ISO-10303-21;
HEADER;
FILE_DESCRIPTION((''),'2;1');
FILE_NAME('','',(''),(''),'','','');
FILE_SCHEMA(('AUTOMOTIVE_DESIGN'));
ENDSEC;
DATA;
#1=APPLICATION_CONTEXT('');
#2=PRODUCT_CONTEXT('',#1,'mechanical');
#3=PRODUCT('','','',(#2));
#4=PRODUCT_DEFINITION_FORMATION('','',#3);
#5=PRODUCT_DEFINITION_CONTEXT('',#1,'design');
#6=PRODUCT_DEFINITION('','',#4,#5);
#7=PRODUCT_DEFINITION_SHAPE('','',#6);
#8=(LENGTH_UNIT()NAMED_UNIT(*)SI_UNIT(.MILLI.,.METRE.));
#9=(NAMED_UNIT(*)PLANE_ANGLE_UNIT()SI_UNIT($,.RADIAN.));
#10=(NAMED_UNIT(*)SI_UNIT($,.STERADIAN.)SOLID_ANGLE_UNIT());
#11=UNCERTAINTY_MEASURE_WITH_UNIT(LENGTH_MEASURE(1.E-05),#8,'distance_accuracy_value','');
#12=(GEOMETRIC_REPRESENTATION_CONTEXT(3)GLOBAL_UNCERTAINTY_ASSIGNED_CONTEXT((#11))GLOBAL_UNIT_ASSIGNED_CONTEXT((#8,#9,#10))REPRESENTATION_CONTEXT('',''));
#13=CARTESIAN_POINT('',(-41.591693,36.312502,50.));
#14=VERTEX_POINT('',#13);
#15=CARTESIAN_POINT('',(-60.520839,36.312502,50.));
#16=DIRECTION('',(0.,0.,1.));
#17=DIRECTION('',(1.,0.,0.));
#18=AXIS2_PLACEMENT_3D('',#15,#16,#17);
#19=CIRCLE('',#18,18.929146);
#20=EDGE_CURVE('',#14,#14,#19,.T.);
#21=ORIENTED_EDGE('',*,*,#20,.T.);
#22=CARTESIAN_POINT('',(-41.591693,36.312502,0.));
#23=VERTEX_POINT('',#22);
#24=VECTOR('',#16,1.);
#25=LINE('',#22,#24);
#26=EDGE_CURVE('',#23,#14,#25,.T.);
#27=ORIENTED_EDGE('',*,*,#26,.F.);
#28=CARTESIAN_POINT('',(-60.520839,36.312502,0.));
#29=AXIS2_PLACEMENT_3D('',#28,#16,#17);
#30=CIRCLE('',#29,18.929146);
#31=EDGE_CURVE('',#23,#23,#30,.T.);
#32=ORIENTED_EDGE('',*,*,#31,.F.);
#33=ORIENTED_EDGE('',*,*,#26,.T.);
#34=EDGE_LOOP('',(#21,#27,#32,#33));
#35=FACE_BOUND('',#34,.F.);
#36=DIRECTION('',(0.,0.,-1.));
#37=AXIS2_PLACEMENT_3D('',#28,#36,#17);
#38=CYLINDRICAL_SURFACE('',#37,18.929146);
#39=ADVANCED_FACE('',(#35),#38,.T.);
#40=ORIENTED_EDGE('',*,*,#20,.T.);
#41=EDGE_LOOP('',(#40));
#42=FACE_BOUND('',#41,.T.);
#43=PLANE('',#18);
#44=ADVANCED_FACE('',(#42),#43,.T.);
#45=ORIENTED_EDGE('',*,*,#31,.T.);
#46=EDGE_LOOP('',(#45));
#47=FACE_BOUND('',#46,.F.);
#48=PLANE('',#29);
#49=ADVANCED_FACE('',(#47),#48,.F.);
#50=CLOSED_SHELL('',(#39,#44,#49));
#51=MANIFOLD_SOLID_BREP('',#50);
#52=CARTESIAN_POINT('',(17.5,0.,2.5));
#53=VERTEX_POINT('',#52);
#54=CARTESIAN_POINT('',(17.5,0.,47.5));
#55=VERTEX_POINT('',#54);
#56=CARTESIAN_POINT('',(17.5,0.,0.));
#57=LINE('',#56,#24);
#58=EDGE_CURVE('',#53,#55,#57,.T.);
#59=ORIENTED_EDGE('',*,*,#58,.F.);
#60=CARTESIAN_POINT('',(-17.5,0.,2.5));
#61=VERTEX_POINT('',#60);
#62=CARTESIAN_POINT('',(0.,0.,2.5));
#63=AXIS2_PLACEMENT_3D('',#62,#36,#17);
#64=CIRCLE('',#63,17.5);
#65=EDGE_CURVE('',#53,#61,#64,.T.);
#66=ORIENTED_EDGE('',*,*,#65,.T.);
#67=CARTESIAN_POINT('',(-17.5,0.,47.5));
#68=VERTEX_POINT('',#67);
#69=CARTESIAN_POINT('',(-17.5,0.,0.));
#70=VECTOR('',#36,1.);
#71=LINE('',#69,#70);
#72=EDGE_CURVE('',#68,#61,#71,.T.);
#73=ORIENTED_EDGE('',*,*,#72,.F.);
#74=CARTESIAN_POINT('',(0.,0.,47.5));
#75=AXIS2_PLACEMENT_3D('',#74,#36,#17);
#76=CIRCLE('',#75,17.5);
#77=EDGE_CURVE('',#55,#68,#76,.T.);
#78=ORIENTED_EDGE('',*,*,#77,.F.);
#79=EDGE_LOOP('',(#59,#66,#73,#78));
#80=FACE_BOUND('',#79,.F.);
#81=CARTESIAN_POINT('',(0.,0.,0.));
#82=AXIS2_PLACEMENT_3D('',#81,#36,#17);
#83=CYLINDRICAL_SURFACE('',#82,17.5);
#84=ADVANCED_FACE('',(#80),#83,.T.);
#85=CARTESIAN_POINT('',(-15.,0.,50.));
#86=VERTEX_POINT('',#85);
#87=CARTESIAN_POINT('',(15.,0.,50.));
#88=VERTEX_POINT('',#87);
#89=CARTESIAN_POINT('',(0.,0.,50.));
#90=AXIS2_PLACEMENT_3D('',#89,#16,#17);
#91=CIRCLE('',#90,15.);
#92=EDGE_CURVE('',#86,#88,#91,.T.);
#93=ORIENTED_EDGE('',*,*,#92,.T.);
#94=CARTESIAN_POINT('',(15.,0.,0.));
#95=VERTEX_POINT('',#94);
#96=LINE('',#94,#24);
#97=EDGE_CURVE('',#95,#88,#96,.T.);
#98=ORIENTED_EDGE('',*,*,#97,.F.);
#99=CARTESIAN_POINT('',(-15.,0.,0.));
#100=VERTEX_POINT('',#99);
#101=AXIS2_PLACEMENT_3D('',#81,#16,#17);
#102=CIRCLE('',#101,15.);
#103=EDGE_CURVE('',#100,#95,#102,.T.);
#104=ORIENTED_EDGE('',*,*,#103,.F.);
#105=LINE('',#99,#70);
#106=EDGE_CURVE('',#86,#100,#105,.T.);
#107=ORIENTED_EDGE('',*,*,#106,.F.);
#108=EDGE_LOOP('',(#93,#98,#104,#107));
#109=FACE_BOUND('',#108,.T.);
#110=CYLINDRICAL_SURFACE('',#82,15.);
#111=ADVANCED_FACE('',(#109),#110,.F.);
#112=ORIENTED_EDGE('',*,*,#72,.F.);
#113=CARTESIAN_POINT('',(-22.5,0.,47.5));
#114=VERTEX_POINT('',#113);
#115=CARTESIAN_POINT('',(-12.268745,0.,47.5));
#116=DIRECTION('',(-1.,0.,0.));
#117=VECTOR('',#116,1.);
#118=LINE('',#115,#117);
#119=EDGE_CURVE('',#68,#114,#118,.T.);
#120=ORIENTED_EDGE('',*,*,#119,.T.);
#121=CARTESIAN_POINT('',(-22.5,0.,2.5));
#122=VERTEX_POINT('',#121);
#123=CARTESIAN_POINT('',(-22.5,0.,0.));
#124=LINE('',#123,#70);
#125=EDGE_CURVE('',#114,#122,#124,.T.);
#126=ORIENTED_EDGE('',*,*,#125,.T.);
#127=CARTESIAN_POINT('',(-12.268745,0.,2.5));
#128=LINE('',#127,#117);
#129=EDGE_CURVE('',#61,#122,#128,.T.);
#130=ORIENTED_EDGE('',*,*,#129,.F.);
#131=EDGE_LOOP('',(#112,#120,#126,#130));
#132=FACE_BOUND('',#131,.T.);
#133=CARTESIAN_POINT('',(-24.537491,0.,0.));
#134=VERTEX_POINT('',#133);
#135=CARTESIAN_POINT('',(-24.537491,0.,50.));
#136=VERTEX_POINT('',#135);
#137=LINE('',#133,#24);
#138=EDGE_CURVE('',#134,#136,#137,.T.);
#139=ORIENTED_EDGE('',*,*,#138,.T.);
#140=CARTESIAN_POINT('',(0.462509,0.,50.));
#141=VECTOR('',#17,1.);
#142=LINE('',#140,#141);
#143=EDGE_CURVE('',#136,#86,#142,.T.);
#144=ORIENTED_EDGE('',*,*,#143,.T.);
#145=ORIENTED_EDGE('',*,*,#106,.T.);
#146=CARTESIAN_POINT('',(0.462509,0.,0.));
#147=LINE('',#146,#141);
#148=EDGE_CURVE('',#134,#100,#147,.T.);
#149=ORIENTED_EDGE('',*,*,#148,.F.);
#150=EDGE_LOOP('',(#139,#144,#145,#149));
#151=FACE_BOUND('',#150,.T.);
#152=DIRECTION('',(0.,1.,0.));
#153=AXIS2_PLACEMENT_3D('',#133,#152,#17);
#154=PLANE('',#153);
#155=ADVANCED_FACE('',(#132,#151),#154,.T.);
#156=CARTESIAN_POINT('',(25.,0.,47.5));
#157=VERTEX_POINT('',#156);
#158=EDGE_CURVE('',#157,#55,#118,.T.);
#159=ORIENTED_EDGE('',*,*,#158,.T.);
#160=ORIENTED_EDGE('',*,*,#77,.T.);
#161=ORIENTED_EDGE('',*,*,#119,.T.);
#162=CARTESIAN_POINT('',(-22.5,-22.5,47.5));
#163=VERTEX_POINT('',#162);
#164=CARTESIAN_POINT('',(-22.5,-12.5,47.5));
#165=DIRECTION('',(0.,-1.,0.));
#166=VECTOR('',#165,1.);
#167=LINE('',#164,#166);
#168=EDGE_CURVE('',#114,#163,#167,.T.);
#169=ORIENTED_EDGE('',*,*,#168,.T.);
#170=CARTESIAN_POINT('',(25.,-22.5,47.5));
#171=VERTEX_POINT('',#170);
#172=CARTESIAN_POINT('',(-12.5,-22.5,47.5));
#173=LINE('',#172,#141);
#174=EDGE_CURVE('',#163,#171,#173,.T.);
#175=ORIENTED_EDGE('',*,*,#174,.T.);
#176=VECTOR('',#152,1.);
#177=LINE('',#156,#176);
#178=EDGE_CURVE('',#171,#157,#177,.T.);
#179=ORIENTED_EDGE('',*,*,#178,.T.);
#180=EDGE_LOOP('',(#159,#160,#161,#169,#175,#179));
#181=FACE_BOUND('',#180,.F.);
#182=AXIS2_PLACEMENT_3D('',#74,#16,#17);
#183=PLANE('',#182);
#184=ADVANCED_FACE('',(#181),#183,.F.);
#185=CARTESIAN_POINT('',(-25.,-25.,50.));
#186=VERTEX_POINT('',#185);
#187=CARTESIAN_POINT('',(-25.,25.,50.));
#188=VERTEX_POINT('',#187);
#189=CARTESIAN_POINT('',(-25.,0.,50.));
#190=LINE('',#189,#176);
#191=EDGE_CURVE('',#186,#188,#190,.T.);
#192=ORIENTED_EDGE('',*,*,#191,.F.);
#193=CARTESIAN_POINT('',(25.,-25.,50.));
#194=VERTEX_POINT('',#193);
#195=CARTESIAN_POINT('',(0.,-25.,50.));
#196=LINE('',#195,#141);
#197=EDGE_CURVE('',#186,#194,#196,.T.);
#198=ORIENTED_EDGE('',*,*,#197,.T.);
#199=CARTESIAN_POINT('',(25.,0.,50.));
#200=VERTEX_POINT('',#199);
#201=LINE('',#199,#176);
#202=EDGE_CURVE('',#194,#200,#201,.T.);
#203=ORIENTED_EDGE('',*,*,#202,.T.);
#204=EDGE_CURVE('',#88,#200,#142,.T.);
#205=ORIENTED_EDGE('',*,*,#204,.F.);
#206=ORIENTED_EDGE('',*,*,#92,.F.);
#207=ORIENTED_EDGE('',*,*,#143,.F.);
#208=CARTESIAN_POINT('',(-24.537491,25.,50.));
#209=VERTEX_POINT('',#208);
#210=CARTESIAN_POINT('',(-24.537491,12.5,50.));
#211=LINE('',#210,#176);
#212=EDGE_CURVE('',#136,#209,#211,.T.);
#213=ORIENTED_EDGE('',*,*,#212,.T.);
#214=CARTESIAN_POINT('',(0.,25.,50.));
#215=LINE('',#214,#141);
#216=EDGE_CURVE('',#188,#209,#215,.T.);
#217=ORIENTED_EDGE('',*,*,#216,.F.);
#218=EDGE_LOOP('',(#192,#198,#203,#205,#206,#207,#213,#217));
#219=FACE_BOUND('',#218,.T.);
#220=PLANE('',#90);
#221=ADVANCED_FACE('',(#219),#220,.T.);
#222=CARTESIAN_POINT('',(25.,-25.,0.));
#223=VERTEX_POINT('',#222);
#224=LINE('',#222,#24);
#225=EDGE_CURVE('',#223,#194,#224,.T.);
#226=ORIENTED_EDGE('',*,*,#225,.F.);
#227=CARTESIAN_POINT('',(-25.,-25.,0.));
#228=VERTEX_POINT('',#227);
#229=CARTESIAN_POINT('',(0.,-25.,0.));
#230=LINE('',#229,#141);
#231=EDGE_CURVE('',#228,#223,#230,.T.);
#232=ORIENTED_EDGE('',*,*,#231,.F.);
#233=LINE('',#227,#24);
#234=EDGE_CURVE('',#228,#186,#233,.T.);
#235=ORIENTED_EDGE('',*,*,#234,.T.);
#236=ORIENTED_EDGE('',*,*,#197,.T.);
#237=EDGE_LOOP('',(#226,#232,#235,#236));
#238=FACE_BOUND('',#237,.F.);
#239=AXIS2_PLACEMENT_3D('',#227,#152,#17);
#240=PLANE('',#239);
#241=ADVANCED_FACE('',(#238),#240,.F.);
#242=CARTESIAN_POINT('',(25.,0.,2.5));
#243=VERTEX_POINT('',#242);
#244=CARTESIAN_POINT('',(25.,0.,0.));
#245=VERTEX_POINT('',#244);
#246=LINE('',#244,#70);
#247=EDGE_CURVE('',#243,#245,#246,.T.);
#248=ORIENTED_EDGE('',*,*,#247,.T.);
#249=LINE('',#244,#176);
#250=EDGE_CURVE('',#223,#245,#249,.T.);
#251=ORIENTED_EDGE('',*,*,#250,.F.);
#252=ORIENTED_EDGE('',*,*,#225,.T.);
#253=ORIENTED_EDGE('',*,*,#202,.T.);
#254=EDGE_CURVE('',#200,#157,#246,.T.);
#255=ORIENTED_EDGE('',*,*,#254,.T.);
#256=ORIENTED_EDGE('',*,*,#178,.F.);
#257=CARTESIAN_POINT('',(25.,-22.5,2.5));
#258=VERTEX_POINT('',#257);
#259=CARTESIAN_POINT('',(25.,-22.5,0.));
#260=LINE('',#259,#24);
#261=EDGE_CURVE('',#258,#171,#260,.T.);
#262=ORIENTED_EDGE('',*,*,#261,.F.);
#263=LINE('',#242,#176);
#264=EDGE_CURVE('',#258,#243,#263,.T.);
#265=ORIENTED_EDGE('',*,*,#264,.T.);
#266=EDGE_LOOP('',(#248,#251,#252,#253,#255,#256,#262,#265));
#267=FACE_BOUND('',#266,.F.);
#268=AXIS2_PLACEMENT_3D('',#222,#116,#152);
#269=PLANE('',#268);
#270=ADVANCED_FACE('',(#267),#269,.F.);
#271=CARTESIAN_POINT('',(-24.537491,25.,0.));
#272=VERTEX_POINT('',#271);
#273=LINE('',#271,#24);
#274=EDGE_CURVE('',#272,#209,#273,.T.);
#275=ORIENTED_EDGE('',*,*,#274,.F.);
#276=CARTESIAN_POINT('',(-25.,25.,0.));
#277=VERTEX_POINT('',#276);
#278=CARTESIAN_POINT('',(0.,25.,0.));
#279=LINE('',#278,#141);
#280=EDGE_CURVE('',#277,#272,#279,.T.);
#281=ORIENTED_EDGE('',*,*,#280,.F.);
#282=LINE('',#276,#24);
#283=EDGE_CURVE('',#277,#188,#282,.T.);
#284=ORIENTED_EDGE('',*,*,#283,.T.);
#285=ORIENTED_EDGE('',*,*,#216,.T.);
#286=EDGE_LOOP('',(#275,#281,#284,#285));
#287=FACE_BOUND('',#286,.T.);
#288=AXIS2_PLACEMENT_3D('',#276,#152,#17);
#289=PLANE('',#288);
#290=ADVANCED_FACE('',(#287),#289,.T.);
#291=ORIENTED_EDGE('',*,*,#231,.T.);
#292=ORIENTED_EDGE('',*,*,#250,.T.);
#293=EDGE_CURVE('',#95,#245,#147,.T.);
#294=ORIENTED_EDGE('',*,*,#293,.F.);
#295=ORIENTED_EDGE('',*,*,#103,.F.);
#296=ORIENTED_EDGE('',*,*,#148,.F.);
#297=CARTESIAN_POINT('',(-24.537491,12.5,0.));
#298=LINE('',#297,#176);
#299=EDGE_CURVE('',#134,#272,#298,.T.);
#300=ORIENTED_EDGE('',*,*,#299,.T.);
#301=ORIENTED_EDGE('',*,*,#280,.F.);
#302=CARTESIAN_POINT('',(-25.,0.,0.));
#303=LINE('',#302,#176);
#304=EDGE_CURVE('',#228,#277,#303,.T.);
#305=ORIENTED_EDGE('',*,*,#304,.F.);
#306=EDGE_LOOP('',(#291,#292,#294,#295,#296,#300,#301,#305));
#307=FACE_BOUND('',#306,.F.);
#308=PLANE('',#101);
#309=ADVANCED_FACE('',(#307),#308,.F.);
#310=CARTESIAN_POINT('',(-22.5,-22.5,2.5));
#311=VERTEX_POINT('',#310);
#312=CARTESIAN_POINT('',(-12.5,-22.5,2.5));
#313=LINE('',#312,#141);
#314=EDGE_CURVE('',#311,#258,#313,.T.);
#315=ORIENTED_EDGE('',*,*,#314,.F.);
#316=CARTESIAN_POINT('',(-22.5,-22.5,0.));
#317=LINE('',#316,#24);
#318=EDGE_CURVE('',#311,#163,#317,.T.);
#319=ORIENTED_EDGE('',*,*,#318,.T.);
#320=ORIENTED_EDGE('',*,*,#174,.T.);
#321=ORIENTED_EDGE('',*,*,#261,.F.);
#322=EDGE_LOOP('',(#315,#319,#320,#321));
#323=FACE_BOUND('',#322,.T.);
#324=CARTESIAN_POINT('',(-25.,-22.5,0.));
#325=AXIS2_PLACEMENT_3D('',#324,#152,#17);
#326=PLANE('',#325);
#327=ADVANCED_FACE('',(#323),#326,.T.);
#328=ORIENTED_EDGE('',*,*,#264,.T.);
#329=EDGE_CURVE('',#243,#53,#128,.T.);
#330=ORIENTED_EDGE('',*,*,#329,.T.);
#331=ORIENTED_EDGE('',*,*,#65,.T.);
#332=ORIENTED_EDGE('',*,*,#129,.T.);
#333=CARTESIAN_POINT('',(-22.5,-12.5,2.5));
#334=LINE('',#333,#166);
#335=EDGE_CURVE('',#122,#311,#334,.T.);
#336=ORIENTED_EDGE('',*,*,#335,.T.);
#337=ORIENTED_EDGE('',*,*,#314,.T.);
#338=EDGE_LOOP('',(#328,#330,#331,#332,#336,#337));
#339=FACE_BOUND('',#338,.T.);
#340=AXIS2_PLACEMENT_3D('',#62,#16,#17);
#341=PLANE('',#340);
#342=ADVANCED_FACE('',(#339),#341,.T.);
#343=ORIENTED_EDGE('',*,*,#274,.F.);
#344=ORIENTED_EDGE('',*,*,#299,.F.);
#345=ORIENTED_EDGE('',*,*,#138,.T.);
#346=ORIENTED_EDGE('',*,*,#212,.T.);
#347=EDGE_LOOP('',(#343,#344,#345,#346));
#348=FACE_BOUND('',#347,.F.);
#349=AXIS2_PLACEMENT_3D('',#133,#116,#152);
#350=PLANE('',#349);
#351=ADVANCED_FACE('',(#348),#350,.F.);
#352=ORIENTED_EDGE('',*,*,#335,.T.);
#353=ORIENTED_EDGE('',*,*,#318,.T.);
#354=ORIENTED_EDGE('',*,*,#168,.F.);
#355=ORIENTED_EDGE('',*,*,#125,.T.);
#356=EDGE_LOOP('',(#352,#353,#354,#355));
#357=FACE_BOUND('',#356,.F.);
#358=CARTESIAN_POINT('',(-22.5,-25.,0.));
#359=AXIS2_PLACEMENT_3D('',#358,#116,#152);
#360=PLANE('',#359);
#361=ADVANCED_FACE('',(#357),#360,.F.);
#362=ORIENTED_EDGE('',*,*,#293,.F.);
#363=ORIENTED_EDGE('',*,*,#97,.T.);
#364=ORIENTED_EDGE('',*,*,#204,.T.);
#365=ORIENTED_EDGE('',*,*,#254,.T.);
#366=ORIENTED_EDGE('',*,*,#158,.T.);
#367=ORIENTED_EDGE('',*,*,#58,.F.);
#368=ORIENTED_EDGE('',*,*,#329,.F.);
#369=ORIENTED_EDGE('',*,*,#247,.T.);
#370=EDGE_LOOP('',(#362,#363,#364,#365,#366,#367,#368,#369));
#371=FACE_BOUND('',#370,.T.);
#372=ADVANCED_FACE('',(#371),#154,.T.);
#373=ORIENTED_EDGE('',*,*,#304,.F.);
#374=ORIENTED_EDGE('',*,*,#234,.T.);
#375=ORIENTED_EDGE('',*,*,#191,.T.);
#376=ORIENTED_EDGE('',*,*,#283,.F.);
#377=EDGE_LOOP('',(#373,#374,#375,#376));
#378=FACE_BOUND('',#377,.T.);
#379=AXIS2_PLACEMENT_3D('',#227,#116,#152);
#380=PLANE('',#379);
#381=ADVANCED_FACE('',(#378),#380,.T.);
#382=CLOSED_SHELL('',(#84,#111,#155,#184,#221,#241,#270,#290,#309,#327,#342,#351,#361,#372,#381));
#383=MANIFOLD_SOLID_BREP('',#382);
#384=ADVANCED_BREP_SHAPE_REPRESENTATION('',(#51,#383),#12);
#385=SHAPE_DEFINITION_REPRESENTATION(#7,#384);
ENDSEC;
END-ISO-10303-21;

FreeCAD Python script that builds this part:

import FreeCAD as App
import Part
import Sketcher
Q = App.Units.Quantity


def faces_at(feature, points):
    """Names of the faces that lie closest to the given points."""
    faces = feature.Shape.Faces
    near = lambda p: min(range(len(faces)), key=lambda i: faces[i].distToShape(Part.Vertex(*p))[0])
    return sorted({f"Face{near(p) + 1}" for p in points})

doc = App.newDocument("Part")
params = doc.addObject("Spreadsheet::Sheet", "Params")
for row, (alias, value) in enumerate([
    ("sketch1_width", "50 mm"),
    ("pad1_length", "50 mm"),
    ("sketch2_diameter", "30 mm"),
    ("pocket1_length", "50 mm"),
    ("thickness_wall", "2.5 mm"),
    ("sketch3_width", "50 mm"),
    ("sketch3_height", "25 mm"),
    ("pocket2_length", "50 mm"),
    ("pad2_length", "50 mm"),
], start=1):
    params.set(f"A{row}", alias)
    params.set(f"B{row}", "=" + value)
    params.setAlias(f"B{row}", alias)

body = doc.addObject("PartDesign::Body", "Body")

# Sketch on XY plane
sketch1 = body.newObject("Sketcher::SketchObject", "Sketch")
sketch1.AttachmentSupport = (doc.getObject("XY_Plane"), [""])
sketch1.MapMode = "FlatFace"
sketch1.addGeometry(Part.LineSegment(App.Vector(-25, 25, 0), App.Vector(-25, -25, 0)), False)
sketch1.addGeometry(Part.LineSegment(App.Vector(-25, -25, 0), App.Vector(25, -25, 0)), False)
sketch1.addGeometry(Part.LineSegment(App.Vector(25, -25, 0), App.Vector(25, 25, 0)), False)
sketch1.addGeometry(Part.LineSegment(App.Vector(25, 25, 0), App.Vector(-25, 25, 0)), False)
sketch1.addConstraint(Sketcher.Constraint("Coincident", 0, 2, 1, 1))
sketch1.addConstraint(Sketcher.Constraint("Coincident", 1, 2, 2, 1))
sketch1.addConstraint(Sketcher.Constraint("Coincident", 2, 2, 3, 1))
sketch1.addConstraint(Sketcher.Constraint("Coincident", 3, 2, 0, 1))
sketch1.addConstraint(Sketcher.Constraint("Vertical", 0))
sketch1.addConstraint(Sketcher.Constraint("Horizontal", 1))
sketch1.addConstraint(Sketcher.Constraint("Vertical", 2))
sketch1.addConstraint(Sketcher.Constraint("Horizontal", 3))
sketch1.addConstraint(Sketcher.Constraint("Symmetric", 0, 2, 2, 2, -1, 1))
sketch1.addConstraint(Sketcher.Constraint("Equal", 3, 0))
sketch1.addConstraint(Sketcher.Constraint("DistanceX", 1, 1, 1, 2, Q("50 mm")))
sketch1.setExpression("Constraints[10]", "Params.sketch1_width")
pad1 = body.newObject("PartDesign::Pad", "Pad")
pad1.Profile = sketch1
pad1.setExpression("Length", "Params.pad1_length")

# Sketch on XY plane
sketch2 = body.newObject("Sketcher::SketchObject", "Sketch001")
sketch2.AttachmentSupport = (doc.getObject("XY_Plane"), [""])
sketch2.MapMode = "FlatFace"
sketch2.addGeometry(Part.Circle(App.Vector(0, 0, 0), App.Vector(0, 0, 1), 15), False)
sketch2.addConstraint(Sketcher.Constraint("Coincident", 0, 3, -1, 1))
sketch2.addConstraint(Sketcher.Constraint("Diameter", 0, Q("30 mm")))
sketch2.setExpression("Constraints[1]", "Params.sketch2_diameter")
pocket1 = body.newObject("PartDesign::Pocket", "Pocket")
pocket1.Profile = sketch2
pocket1.setExpression("Length", "Params.pocket1_length")
pocket1.Reversed = True
doc.recompute()

thickness = body.newObject("PartDesign::Thickness", "Thickness")
thickness.Base = (pocket1, faces_at(pocket1, [(25, 0, 25)]))
thickness.setExpression("Value", "Params.thickness_wall")
thickness.Reversed = True
thickness.Join = "Arc"

# Sketch on XY plane
sketch3 = body.newObject("Sketcher::SketchObject", "Sketch002")
sketch3.AttachmentSupport = (doc.getObject("XY_Plane"), [""])
sketch3.MapMode = "FlatFace"
sketch3.addGeometry(Part.LineSegment(App.Vector(-24.537491, 25, 0), App.Vector(-24.537491, 0, 0)), False)
sketch3.addGeometry(Part.LineSegment(App.Vector(-24.537491, 0, 0), App.Vector(25.462509, 0, 0)), False)
sketch3.addGeometry(Part.LineSegment(App.Vector(25.462509, 0, 0), App.Vector(25.462509, 25, 0)), False)
sketch3.addGeometry(Part.LineSegment(App.Vector(25.462509, 25, 0), App.Vector(-24.537491, 25, 0)), False)
sketch3.addConstraint(Sketcher.Constraint("Coincident", 0, 2, 1, 1))
sketch3.addConstraint(Sketcher.Constraint("Coincident", 1, 2, 2, 1))
sketch3.addConstraint(Sketcher.Constraint("Coincident", 2, 2, 3, 1))
sketch3.addConstraint(Sketcher.Constraint("Coincident", 3, 2, 0, 1))
sketch3.addConstraint(Sketcher.Constraint("Vertical", 0))
sketch3.addConstraint(Sketcher.Constraint("Horizontal", 1))
sketch3.addConstraint(Sketcher.Constraint("Vertical", 2))
sketch3.addConstraint(Sketcher.Constraint("Horizontal", 3))
sketch3.addConstraint(Sketcher.Constraint("PointOnObject", 0, 2, -1))
sketch3.addConstraint(Sketcher.Constraint("DistanceX", 1, 1, 1, 2, Q("50 mm")))
sketch3.addConstraint(Sketcher.Constraint("DistanceY", 0, 2, 0, 1, Q("25 mm")))
sketch3.addConstraint(Sketcher.Constraint("DistanceX", 0, 2, -1, 1, Q("24.537491 mm")))
sketch3.setExpression("Constraints[9]", "Params.sketch3_width")
sketch3.setExpression("Constraints[10]", "Params.sketch3_height")
pocket2 = body.newObject("PartDesign::Pocket", "Pocket001")
pocket2.Profile = sketch3
pocket2.setExpression("Length", "Params.pocket2_length")
pocket2.Reversed = True
body2 = doc.addObject("PartDesign::Body", "Body001")

# Sketch on XY plane
sketch4 = body2.newObject("Sketcher::SketchObject", "Sketch003")
sketch4.AttachmentSupport = (doc.getObject("XY_Plane001"), [""])
sketch4.MapMode = "FlatFace"
sketch4.addGeometry(Part.Circle(App.Vector(-60.520839, 36.312502, 0), App.Vector(0, 0, 1), 18.929146), False)
sketch4.addConstraint(Sketcher.Constraint("Diameter", 0, Q("37.858292 mm")))
sketch4.addConstraint(Sketcher.Constraint("DistanceX", 0, 3, -1, 1, Q("60.520839 mm")))
sketch4.addConstraint(Sketcher.Constraint("DistanceY", -1, 1, 0, 3, Q("36.312502 mm")))
pad2 = body2.newObject("PartDesign::Pad", "Pad001")
pad2.Profile = sketch4
pad2.setExpression("Length", "Params.pad2_length")

doc.recompute()
